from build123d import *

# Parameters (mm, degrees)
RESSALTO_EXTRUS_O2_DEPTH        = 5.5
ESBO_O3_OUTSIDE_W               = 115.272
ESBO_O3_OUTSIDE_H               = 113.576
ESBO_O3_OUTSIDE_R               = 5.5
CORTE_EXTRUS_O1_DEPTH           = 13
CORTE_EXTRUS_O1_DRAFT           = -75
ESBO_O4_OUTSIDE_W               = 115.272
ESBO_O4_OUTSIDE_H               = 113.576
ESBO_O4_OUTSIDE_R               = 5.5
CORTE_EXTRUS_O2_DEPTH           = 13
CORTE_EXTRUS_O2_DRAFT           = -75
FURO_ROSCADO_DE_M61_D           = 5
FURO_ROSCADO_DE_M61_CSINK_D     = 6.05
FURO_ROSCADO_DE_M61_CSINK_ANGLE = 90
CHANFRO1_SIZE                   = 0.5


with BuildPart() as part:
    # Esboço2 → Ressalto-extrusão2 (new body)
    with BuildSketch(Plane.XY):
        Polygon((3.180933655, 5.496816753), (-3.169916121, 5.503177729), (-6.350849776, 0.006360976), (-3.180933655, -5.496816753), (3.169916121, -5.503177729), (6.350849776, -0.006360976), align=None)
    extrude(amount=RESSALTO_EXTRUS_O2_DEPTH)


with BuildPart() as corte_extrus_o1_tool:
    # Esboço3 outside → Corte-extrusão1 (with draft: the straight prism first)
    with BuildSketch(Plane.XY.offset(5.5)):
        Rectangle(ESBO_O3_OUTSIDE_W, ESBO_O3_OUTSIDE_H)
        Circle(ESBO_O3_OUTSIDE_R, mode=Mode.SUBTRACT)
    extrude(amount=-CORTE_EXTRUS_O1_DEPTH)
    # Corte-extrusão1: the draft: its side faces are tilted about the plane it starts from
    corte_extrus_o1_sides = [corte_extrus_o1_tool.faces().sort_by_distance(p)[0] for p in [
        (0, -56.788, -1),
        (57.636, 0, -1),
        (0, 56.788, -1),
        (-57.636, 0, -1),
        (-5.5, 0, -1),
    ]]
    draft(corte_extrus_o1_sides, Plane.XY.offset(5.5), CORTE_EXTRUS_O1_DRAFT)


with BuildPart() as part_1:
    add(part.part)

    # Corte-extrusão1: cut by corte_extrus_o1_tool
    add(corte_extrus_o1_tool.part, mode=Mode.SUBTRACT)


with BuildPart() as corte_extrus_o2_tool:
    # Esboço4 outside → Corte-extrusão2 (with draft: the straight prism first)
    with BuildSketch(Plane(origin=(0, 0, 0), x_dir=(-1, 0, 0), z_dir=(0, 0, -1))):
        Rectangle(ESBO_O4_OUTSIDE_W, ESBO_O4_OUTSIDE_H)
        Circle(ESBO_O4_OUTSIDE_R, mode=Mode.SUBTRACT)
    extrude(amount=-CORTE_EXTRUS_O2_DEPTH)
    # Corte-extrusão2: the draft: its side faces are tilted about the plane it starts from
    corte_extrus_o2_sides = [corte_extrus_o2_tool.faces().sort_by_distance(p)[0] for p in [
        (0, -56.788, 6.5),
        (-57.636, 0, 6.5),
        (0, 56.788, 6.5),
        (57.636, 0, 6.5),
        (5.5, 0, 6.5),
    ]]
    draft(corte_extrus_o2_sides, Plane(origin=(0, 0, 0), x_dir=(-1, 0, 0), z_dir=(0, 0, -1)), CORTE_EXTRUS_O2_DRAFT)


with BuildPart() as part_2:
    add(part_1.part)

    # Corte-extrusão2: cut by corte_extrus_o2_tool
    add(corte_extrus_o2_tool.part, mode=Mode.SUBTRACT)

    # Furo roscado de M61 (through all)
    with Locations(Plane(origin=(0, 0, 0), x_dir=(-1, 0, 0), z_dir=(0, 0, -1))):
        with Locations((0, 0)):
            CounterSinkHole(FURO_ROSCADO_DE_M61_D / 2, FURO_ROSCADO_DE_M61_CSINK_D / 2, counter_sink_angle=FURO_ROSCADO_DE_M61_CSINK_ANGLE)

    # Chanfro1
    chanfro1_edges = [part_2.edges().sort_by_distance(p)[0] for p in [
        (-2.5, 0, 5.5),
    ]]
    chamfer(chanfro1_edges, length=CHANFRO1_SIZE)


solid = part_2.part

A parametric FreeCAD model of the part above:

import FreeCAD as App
import Part
import Sketcher

V = App.Vector


def edges_at(feature, points):
    """Names of the edges that pass closest to the given points."""
    edges = feature.Shape.Edges
    near = lambda p: min(range(len(edges)), key=lambda i: edges[i].distToShape(Part.Vertex(*p))[0])
    return sorted({f"Edge{near(p) + 1}" for p in points})


def faces_at(feature, points):
    """Names of the faces that lie closest to the given points."""
    faces = feature.Shape.Faces
    near = lambda p: min(range(len(faces)), key=lambda i: faces[i].distToShape(Part.Vertex(*p))[0])
    return sorted({f"Face{near(p) + 1}" for p in points})


def add_polygon(sketch, points):
    """Adds a closed chain of lines whose ends are joined by coincident constraints."""
    first, n = sketch.GeometryCount, len(points)
    for a, b in zip(points, points[1:] + points[:1]):
        sketch.addGeometry(Part.LineSegment(App.Vector(*a, 0), App.Vector(*b, 0)), False)
    for i in range(n):
        sketch.addConstraint(Sketcher.Constraint("Coincident", first + i, 2, first + (i + 1) % n, 1))

doc = App.newDocument("Part")
body = doc.addObject("PartDesign::Body", "Body")

# Sketch on XY plane
sketch1 = body.newObject("Sketcher::SketchObject", "Sketch")
sketch1.AttachmentSupport = (doc.getObject("XY_Plane"), [""])
sketch1.MapMode = "FlatFace"
add_polygon(sketch1, [(3, 5), (-3, 6), (-6, 0), (-3, -5), (3, -6), (6, 0)])  # lines 0-5
sketch1.addConstraint(Sketcher.Constraint("Symmetric", 0, 2, 3, 2, -1, 1))
sketch1.addConstraint(Sketcher.Constraint("Symmetric", 1, 2, 4, 2, -1, 1))
sketch1.addConstraint(Sketcher.Constraint("Symmetric", 2, 2, 5, 2, -1, 1))
sketch1.addConstraint(Sketcher.Constraint("Equal", 0, 1))
sketch1.addConstraint(Sketcher.Constraint("Equal", 1, 2))
sketch1.addConstraint(Sketcher.Constraint("DistanceX", 1, 2, 4, 2, 12.7017))
sketch1.addConstraint(Sketcher.Constraint("DistanceY", -1, 1, 1, 2, 0.006361))
sketch1.addConstraint(Sketcher.Constraint("DistanceX", 2, 2, 3, 2, 6.35085))
sketch1.addConstraint(Sketcher.Constraint("DistanceY", 3, 2, 2, 2, 0.006361))
pad1 = body.newObject("PartDesign::Pad", "Pad")
pad1.Profile = sketch1
pad1.Length = 5.5
body2 = doc.addObject("PartDesign::Body", "Body001")

# Sketch on XY plane
sketch2 = body2.newObject("Sketcher::SketchObject", "Sketch001")
sketch2.AttachmentSupport = (doc.getObject("XY_Plane001"), [""])
sketch2.MapMode = "FlatFace"
sketch2.AttachmentOffset = App.Placement(V(0, 0, 5.5), App.Rotation())
add_polygon(sketch2, [(-58, 57), (-58, -57), (58, -57), (58, 57)])  # lines 0-3
sketch2.addGeometry(Part.Circle(V(0, 0, 0), V(0, 0, 1), 6), False)  # 4
sketch2.addConstraint(Sketcher.Constraint("Vertical", 0))
sketch2.addConstraint(Sketcher.Constraint("Horizontal", 1))
sketch2.addConstraint(Sketcher.Constraint("Vertical", 2))
sketch2.addConstraint(Sketcher.Constraint("Horizontal", 3))
sketch2.addConstraint(Sketcher.Constraint("Coincident", 4, 3, -1, 1))
sketch2.addConstraint(Sketcher.Constraint("Symmetric", 0, 2, 2, 2, -1, 1))
sketch2.addConstraint(Sketcher.Constraint("Diameter", 4, 11.0))
sketch2.addConstraint(Sketcher.Constraint("DistanceX", 1, 1, 1, 2, 115.272))
sketch2.addConstraint(Sketcher.Constraint("DistanceY", 0, 2, 0, 1, 113.576))
pad2 = body2.newObject("PartDesign::Pad", "Pad001")
pad2.Profile = sketch2
pad2.Length = 13
pad2.Reversed = True
doc.recompute()

datumplane = body2.newObject("PartDesign::Plane", "DatumPlane")
datumplane.AttachmentSupport = (doc.getObject("XY_Plane001"), [""])
datumplane.MapMode = "FlatFace"
datumplane.AttachmentOffset = App.Placement(V(0, 0, 5.5), App.Rotation())
draft = body2.newObject("PartDesign::Draft", "Draft")
draft.Base = (pad2, faces_at(pad2, [
    (0, -56.788, -1),
    (57.636, 0, -1),
    (0, 56.788, -1),
    (-57.636, 0, -1),
    (-5.5, 0, -1),
]))
draft.NeutralPlane = (datumplane, [""])
draft.Angle = 75
draft.Reversed = True
doc.recompute()

boolean = body.newObject("PartDesign::Boolean", "Boolean")
boolean.Type = "Cut"
boolean.addObjects([body2])
body3 = doc.addObject("PartDesign::Body", "Body002")

# Sketch on XY plane
sketch3 = body3.newObject("Sketcher::SketchObject", "Sketch002")
sketch3.AttachmentSupport = (doc.getObject("XY_Plane002"), [""])
sketch3.MapMode = "FlatFace"
add_polygon(sketch3, [(58, 57), (58, -57), (-58, -57), (-58, 57)])  # lines 0-3
sketch3.addGeometry(Part.Circle(V(0, 0, 0), V(0, 0, 1), 6), False)  # 4
sketch3.addConstraint(Sketcher.Constraint("Vertical", 0))
sketch3.addConstraint(Sketcher.Constraint("Horizontal", 1))
sketch3.addConstraint(Sketcher.Constraint("Vertical", 2))
sketch3.addConstraint(Sketcher.Constraint("Horizontal", 3))
sketch3.addConstraint(Sketcher.Constraint("Coincident", 4, 3, -1, 1))
sketch3.addConstraint(Sketcher.Constraint("Symmetric", 0, 2, 2, 2, -1, 1))
sketch3.addConstraint(Sketcher.Constraint("Diameter", 4, 11.0))
sketch3.addConstraint(Sketcher.Constraint("DistanceX", 1, 2, 1, 1, 115.272))
sketch3.addConstraint(Sketcher.Constraint("DistanceY", 0, 2, 0, 1, 113.576))
pad3 = body3.newObject("PartDesign::Pad", "Pad002")
pad3.Profile = sketch3
pad3.Length = 13
doc.recompute()

draft2 = body3.newObject("PartDesign::Draft", "Draft001")
draft2.Base = (pad3, faces_at(pad3, [
    (0, -56.788, 6.5),
    (-57.636, 0, 6.5),
    (0, 56.788, 6.5),
    (57.636, 0, 6.5),
    (5.5, 0, 6.5),
]))
draft2.NeutralPlane = (doc.getObject("XY_Plane002"), [""])
draft2.Angle = 75
draft2.Reversed = False
doc.recompute()

boolean2 = body.newObject("PartDesign::Boolean", "Boolean001")
boolean2.Type = "Cut"
boolean2.addObjects([body3])

# Sketch on XY plane
sketch4 = body.newObject("Sketcher::SketchObject", "Sketch003")
sketch4.AttachmentSupport = (doc.getObject("XY_Plane"), [""])
sketch4.MapMode = "FlatFace"
sketch4.addGeometry(Part.Circle(V(0, 0, 0), V(0, 0, 1), 2.5), False)
sketch4.addConstraint(Sketcher.Constraint("Coincident", 0, 3, -1, 1))
sketch4.addConstraint(Sketcher.Constraint("Diameter", 0, 5.0))
doc.recompute()
hole = body.newObject("PartDesign::Hole", "Hole")
hole.Profile = sketch4
hole.ThreadType = "None"
hole.Diameter = 5
hole.DepthType = "ThroughAll"
hole.HoleCutType = "Countersink"
hole.HoleCutDiameter = 6.05
hole.HoleCutCountersinkAngle = 90
hole.Reversed = True
doc.recompute()

chamfer = body.newObject("PartDesign::Chamfer", "Chamfer")
chamfer.Base = (hole, edges_at(hole, [(-2.5, 0, 5.5)]))
chamfer.Size = 0.5

doc.recompute()
